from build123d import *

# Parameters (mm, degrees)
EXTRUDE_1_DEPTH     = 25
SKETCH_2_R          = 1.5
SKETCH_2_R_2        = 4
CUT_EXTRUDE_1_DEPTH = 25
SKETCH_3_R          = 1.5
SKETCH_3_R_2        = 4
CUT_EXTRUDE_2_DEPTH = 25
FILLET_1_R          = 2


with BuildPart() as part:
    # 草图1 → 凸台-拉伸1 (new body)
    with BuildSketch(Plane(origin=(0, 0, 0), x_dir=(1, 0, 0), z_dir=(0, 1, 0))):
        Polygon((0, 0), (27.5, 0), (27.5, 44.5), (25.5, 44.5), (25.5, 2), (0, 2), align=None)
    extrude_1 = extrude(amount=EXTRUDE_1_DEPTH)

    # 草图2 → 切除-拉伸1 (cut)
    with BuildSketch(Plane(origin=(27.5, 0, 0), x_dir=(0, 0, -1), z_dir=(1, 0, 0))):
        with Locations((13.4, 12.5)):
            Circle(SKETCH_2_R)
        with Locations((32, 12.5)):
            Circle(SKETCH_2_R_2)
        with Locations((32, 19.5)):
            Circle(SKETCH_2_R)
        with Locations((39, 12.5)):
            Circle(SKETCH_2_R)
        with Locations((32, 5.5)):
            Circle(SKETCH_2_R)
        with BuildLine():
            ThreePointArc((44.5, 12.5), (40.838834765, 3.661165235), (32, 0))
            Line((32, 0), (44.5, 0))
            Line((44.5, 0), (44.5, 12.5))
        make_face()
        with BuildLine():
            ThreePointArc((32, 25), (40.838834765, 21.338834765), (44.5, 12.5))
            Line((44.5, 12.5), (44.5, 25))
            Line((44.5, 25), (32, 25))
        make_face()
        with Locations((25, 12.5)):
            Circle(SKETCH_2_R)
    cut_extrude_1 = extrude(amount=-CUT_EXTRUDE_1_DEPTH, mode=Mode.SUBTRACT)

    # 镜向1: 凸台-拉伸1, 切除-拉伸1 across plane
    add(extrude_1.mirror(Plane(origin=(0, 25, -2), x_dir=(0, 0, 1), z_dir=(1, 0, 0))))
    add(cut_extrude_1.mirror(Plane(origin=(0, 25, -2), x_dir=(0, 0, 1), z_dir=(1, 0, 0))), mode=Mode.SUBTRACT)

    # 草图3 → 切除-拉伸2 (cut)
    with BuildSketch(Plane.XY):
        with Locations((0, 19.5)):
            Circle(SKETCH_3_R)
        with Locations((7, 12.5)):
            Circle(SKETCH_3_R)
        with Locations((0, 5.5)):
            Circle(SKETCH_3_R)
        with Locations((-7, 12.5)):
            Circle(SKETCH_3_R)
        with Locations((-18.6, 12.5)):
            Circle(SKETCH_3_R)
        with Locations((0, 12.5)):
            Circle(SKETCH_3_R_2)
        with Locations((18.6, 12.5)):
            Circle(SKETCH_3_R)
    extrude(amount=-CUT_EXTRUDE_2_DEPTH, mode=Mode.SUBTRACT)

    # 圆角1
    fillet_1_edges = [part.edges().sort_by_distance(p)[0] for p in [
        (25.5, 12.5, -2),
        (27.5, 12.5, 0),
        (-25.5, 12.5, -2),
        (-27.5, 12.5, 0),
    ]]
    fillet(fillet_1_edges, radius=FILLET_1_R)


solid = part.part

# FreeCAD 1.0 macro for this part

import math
import FreeCAD as App
import Part
import Sketcher

V = App.Vector


def edges_at(feature, points):
    """Names of the edges that pass closest to the given points."""
    edges = feature.Shape.Edges
    near = lambda p: min(range(len(edges)), key=lambda i: edges[i].distToShape(Part.Vertex(*p))[0])
    return sorted({f"Edge{near(p) + 1}" for p in points})

doc = App.newDocument("Part")
body = doc.addObject("PartDesign::Body", "Body")

# Sketch on XZ plane
sketch1 = doc.addObject("Sketcher::SketchObject", "Sketch")
body.addObject(sketch1)
sketch1.AttachmentSupport = (doc.XZ_Plane, [""])
sketch1.MapMode = "FlatFace"
sketch1.addGeometry(Part.LineSegment(V(0, 0, 0), V(27.5, 0, 0)), False)
sketch1.addGeometry(Part.LineSegment(V(27.5, 0, 0), V(27.5, -44.5, 0)), False)
sketch1.addGeometry(Part.LineSegment(V(27.5, -44.5, 0), V(25.5, -44.5, 0)), False)
sketch1.addGeometry(Part.LineSegment(V(25.5, -44.5, 0), V(25.5, -2, 0)), False)
sketch1.addGeometry(Part.LineSegment(V(25.5, -2, 0), V(0, -2, 0)), False)
sketch1.addGeometry(Part.LineSegment(V(0, -2, 0), V(0, 0, 0)), False)
sketch1.addConstraint(Sketcher.Constraint("Coincident", 0, 2, 1, 1))
sketch1.addConstraint(Sketcher.Constraint("Coincident", 1, 2, 2, 1))
sketch1.addConstraint(Sketcher.Constraint("Coincident", 2, 2, 3, 1))
sketch1.addConstraint(Sketcher.Constraint("Coincident", 3, 2, 4, 1))
sketch1.addConstraint(Sketcher.Constraint("Coincident", 4, 2, 5, 1))
sketch1.addConstraint(Sketcher.Constraint("Coincident", 5, 2, 0, 1))
sketch1.addConstraint(Sketcher.Constraint("Horizontal", 0))
sketch1.addConstraint(Sketcher.Constraint("Vertical", 1))
sketch1.addConstraint(Sketcher.Constraint("Horizontal", 2))
sketch1.addConstraint(Sketcher.Constraint("Vertical", 3))
sketch1.addConstraint(Sketcher.Constraint("Horizontal", 4))
sketch1.addConstraint(Sketcher.Constraint("Vertical", 5))
sketch1.addConstraint(Sketcher.Constraint("Coincident", 5, 2, -1, 1))
sketch1.addConstraint(Sketcher.Constraint("Equal", 2, 5))
sketch1.addConstraint(Sketcher.Constraint("DistanceX", 2, 2, 2, 1, 2.0))
sketch1.addConstraint(Sketcher.Constraint("DistanceX", 0, 1, 0, 2, 27.5))
sketch1.addConstraint(Sketcher.Constraint("DistanceY", 1, 2, 1, 1, 44.5))
pad1 = doc.addObject("PartDesign::Pad", "Pad")
body.addObject(pad1)
pad1.Profile = sketch1
pad1.Length = 25
pad1.Reversed = True

# Sketch on YZ plane
sketch2 = doc.addObject("Sketcher::SketchObject", "Sketch001")
body.addObject(sketch2)
sketch2.AttachmentSupport = (doc.YZ_Plane, [""])
sketch2.MapMode = "FlatFace"
sketch2.AttachmentOffset = App.Placement(V(0, 0, 27.5), App.Rotation())
sketch2.addGeometry(Part.Circle(V(12.5, -13.4, 0), V(0, 0, 1), 1.5), False)
sketch2.addGeometry(Part.Circle(V(12.5, -32, 0), V(0, 0, 1), 4), False)
sketch2.addGeometry(Part.Circle(V(19.5, -32, 0), V(0, 0, 1), 1.5), False)
sketch2.addGeometry(Part.Circle(V(12.5, -39, 0), V(0, 0, 1), 1.5), False)
sketch2.addGeometry(Part.Circle(V(5.5, -32, 0), V(0, 0, 1), 1.5), False)
sketch2.addGeometry(Part.ArcOfCircle(Part.Circle(V(12.5, -32, 0), V(0, 0, 1), 12.5), math.radians(180), math.radians(270)), False)
sketch2.addGeometry(Part.LineSegment(V(0, -32, 0), V(0, -44.5, 0)), False)
sketch2.addGeometry(Part.LineSegment(V(0, -44.5, 0), V(12.5, -44.5, 0)), False)
sketch2.addGeometry(Part.ArcOfCircle(Part.Circle(V(12.5, -32, 0), V(0, 0, 1), 12.5), math.radians(-90), math.radians(0)), False)
sketch2.addGeometry(Part.LineSegment(V(12.5, -44.5, 0), V(25, -44.5, 0)), False)
sketch2.addGeometry(Part.LineSegment(V(25, -44.5, 0), V(25, -32, 0)), False)
sketch2.addGeometry(Part.Circle(V(12.5, -25, 0), V(0, 0, 1), 1.5), False)
sketch2.addConstraint(Sketcher.Constraint("Tangent", 5, 1, 6, 1))
sketch2.addConstraint(Sketcher.Constraint("Coincident", 6, 2, 7, 1))
sketch2.addConstraint(Sketcher.Constraint("Tangent", 7, 2, 5, 2))
sketch2.addConstraint(Sketcher.Constraint("Tangent", 8, 1, 9, 1))
sketch2.addConstraint(Sketcher.Constraint("Coincident", 9, 2, 10, 1))
sketch2.addConstraint(Sketcher.Constraint("Tangent", 10, 2, 8, 2))
sketch2.addConstraint(Sketcher.Constraint("Vertical", 6))
sketch2.addConstraint(Sketcher.Constraint("Horizontal", 7))
sketch2.addConstraint(Sketcher.Constraint("Horizontal", 9))
sketch2.addConstraint(Sketcher.Constraint("Vertical", 10))
sketch2.addConstraint(Sketcher.Constraint("Coincident", 5, 3, 1, 3))
sketch2.addConstraint(Sketcher.Constraint("Coincident", 8, 3, 1, 3))
sketch2.addConstraint(Sketcher.Constraint("Equal", 0, 2))
sketch2.addConstraint(Sketcher.Constraint("Equal", 2, 3))
sketch2.addConstraint(Sketcher.Constraint("Equal", 3, 4))
sketch2.addConstraint(Sketcher.Constraint("Equal", 5, 8))
sketch2.addConstraint(Sketcher.Constraint("Equal", 4, 11))
sketch2.addConstraint(Sketcher.Constraint("PointOnObject", 5, 1, -2))
sketch2.addConstraint(Sketcher.Constraint("Horizontal", 1, 3, 2, 3))
sketch2.addConstraint(Sketcher.Constraint("Horizontal", 2, 3, 4, 3))
sketch2.addConstraint(Sketcher.Constraint("Vertical", 0, 3, 1, 3))
sketch2.addConstraint(Sketcher.Constraint("Vertical", 1, 3, 3, 3))
sketch2.addConstraint(Sketcher.Constraint("Vertical", 8, 3, 11, 3))
sketch2.addConstraint(Sketcher.Constraint("Diameter", 0, 3.0))
sketch2.addConstraint(Sketcher.Constraint("Diameter", 1, 8.0))
sketch2.addConstraint(Sketcher.Constraint("Radius", 5, 12.5))
sketch2.addConstraint(Sketcher.Constraint("DistanceY", 1, 3, -1, 1, 32.0))
sketch2.addConstraint(Sketcher.Constraint("DistanceY", 3, 3, -1, 1, 39.0))
sketch2.addConstraint(Sketcher.Constraint("DistanceY", 11, 3, -1, 1, 25.0))
sketch2.addConstraint(Sketcher.Constraint("DistanceX", 1, 3, 2, 3, 7.0))
sketch2.addConstraint(Sketcher.Constraint("DistanceX", 4, 3, 1, 3, 7.0))
sketch2.addConstraint(Sketcher.Constraint("DistanceY", 0, 3, -1, 1, 13.4))
pocket1 = doc.addObject("PartDesign::Pocket", "Pocket")
body.addObject(pocket1)
pocket1.Profile = sketch2
pocket1.Length = 25
doc.recompute()

mirrored = doc.addObject("PartDesign::Mirrored", "Mirrored")
body.addObject(mirrored)
mirrored.Originals = [pad1, pocket1]
mirrored.MirrorPlane = (doc.YZ_Plane, [""])
body.Tip = mirrored

# Sketch on XY plane
sketch3 = doc.addObject("Sketcher::SketchObject", "Sketch002")
body.addObject(sketch3)
sketch3.AttachmentSupport = (doc.XY_Plane, [""])
sketch3.MapMode = "FlatFace"
sketch3.addGeometry(Part.Circle(V(0, 19.5, 0), V(0, 0, 1), 1.5), False)
sketch3.addGeometry(Part.Circle(V(7, 12.5, 0), V(0, 0, 1), 1.5), False)
sketch3.addGeometry(Part.Circle(V(0, 5.5, 0), V(0, 0, 1), 1.5), False)
sketch3.addGeometry(Part.Circle(V(-7, 12.5, 0), V(0, 0, 1), 1.5), False)
sketch3.addGeometry(Part.Circle(V(-18.6, 12.5, 0), V(0, 0, 1), 1.5), False)
sketch3.addGeometry(Part.Circle(V(0, 12.5, 0), V(0, 0, 1), 4), False)
sketch3.addGeometry(Part.Circle(V(18.6, 12.5, 0), V(0, 0, 1), 1.5), False)
sketch3.addConstraint(Sketcher.Constraint("Equal", 0, 1))
sketch3.addConstraint(Sketcher.Constraint("Equal", 1, 2))
sketch3.addConstraint(Sketcher.Constraint("Equal", 2, 3))
sketch3.addConstraint(Sketcher.Constraint("Equal", 3, 4))
sketch3.addConstraint(Sketcher.Constraint("Equal", 4, 6))
sketch3.addConstraint(Sketcher.Constraint("Symmetric", 1, 3, 3, 3, -2))
sketch3.addConstraint(Sketcher.Constraint("Symmetric", 4, 3, 6, 3, -2))
sketch3.addConstraint(Sketcher.Constraint("PointOnObject", 0, 3, -2))
sketch3.addConstraint(Sketcher.Constraint("PointOnObject", 2, 3, -2))
sketch3.addConstraint(Sketcher.Constraint("PointOnObject", 5, 3, -2))
sketch3.addConstraint(Sketcher.Constraint("Horizontal", 3, 3, 4, 3))
sketch3.addConstraint(Sketcher.Constraint("Horizontal", 4, 3, 5, 3))
sketch3.addConstraint(Sketcher.Constraint("Diameter", 0, 3.0))
sketch3.addConstraint(Sketcher.Constraint("Diameter", 5, 8.0))
sketch3.addConstraint(Sketcher.Constraint("DistanceX", -1, 1, 1, 3, 7.0))
sketch3.addConstraint(Sketcher.Constraint("DistanceY", 1, 3, 0, 3, 7.0))
sketch3.addConstraint(Sketcher.Constraint("DistanceY", 2, 3, 1, 3, 7.0))
sketch3.addConstraint(Sketcher.Constraint("DistanceY", -1, 1, 0, 3, 19.5))
sketch3.addConstraint(Sketcher.Constraint("DistanceX", 4, 3, -1, 1, 18.6))
pocket2 = doc.addObject("PartDesign::Pocket", "Pocket001")
body.addObject(pocket2)
pocket2.Profile = sketch3
pocket2.Length = 25
doc.recompute()

fillet = doc.addObject("PartDesign::Fillet", "Fillet")
body.addObject(fillet)
fillet.Base = (pocket2, edges_at(pocket2, [
    (25.5, 12.5, -2),
    (27.5, 12.5, 0),
    (-25.5, 12.5, -2),
    (-27.5, 12.5, 0),
]))
fillet.Radius = 2

doc.recompute()
